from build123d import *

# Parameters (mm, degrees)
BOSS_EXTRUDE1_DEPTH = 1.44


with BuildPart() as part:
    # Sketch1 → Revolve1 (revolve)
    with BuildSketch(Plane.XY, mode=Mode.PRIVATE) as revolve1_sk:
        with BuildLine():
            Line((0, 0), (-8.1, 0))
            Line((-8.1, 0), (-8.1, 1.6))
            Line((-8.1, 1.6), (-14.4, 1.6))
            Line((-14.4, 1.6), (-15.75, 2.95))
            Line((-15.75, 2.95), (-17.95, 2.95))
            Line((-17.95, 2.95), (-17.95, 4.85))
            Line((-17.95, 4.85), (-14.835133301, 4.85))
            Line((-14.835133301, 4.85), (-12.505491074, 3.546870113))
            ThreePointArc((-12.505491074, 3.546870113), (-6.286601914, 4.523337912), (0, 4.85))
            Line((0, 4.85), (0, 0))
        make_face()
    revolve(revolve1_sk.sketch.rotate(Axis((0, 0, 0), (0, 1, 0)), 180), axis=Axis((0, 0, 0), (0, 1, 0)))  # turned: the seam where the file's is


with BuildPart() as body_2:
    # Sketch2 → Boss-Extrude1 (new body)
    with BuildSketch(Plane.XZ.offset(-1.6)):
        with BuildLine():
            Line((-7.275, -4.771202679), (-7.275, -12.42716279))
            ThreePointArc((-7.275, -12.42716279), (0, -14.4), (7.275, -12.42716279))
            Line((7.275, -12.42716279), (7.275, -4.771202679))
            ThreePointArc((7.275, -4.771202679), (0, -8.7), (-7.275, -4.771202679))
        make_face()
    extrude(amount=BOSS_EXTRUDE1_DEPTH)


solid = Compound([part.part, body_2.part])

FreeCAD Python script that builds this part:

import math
import FreeCAD as App
import Part
import Sketcher
Q = App.Units.Quantity

doc = App.newDocument("Part")
body = doc.addObject("PartDesign::Body", "Body")

sketch1 = body.newObject("Sketcher::SketchObject", "Sketch")
sketch1.AttachmentSupport = (doc.getObject("XY_Plane"), [""])
sketch1.MapMode = "FlatFace"
sketch1.addGeometry([
    Part.LineSegment(App.Vector(-8.1, 0, 0), App.Vector(0, 0, 0)),
    Part.LineSegment(App.Vector(0, 0, 0), App.Vector(0, 4.8, 0)),
    Part.ArcOfCircle(Part.Circle(App.Vector(0, -55.8, 0), App.Vector(0, 0, 1), 60.7), math.radians(90), math.radians(101.9)),
    Part.LineSegment(App.Vector(-12.5, 3.5, 0), App.Vector(-14.8, 4.8, 0)),
    Part.LineSegment(App.Vector(-14.8, 4.8, 0), App.Vector(-17.9, 4.8, 0)),
    Part.LineSegment(App.Vector(-17.9, 4.8, 0), App.Vector(-17.9, 3, 0)),
    Part.LineSegment(App.Vector(-17.9, 3, 0), App.Vector(-15.8, 3, 0)),
    Part.LineSegment(App.Vector(-15.8, 3, 0), App.Vector(-14.4, 1.6, 0)),
    Part.LineSegment(App.Vector(-14.4, 1.6, 0), App.Vector(-8.1, 1.6, 0)),
    Part.LineSegment(App.Vector(-8.1, 1.6, 0), App.Vector(-8.1, 0, 0)),
], False)
sketch1.addConstraint([
    Sketcher.Constraint("Coincident", 0, 2, 1, 1),
    Sketcher.Constraint("Coincident", 1, 2, 2, 1),
    Sketcher.Constraint("Coincident", 2, 2, 3, 1),
    Sketcher.Constraint("Coincident", 3, 2, 4, 1),
    Sketcher.Constraint("Coincident", 4, 2, 5, 1),
    Sketcher.Constraint("Coincident", 5, 2, 6, 1),
    Sketcher.Constraint("Coincident", 6, 2, 7, 1),
    Sketcher.Constraint("Coincident", 7, 2, 8, 1),
    Sketcher.Constraint("Coincident", 8, 2, 9, 1),
    Sketcher.Constraint("Coincident", 9, 2, 0, 1),
    Sketcher.Constraint("Horizontal", 0),
    Sketcher.Constraint("Vertical", 1),
    Sketcher.Constraint("Horizontal", 4),
    Sketcher.Constraint("Vertical", 5),
    Sketcher.Constraint("Horizontal", 6),
    Sketcher.Constraint("Horizontal", 8),
    Sketcher.Constraint("Vertical", 9),
    Sketcher.Constraint("Coincident", 0, 2, -1, 1),
    Sketcher.Constraint("PointOnObject", 2, 3, -2),
    Sketcher.Constraint("Horizontal", 1, 2, 3, 2),
    Sketcher.Constraint("Angle", 7, Q("-45 deg")),
    Sketcher.Constraint("DistanceX", 0, 1, 0, 2, 8.1),
    Sketcher.Constraint("DistanceX", 6, 1, 6, 2, 2.2),
    Sketcher.Constraint("DistanceX", 8, 1, 8, 2, 6.3),
    Sketcher.Constraint("DistanceY", 5, 2, 5, 1, 1.9),
    Sketcher.Constraint("DistanceY", 9, 2, 9, 1, 1.6),
    Sketcher.Constraint("DistanceY", 1, 1, 1, 2, 4.85),
    Sketcher.Constraint("Radius", 2, 60.656062),
    Sketcher.Constraint("Distance", 3, 2.669341),
    Sketcher.Constraint("DistanceX", 4, 2, 4, 1, 3.114867),
])
revolution = body.newObject("PartDesign::Revolution", "Revolution")
revolution.Profile = sketch1
revolution.ReferenceAxis = (sketch1, ["V_Axis"])
revolution.Angle = 360
body2 = doc.addObject("PartDesign::Body", "Body001")

sketch2 = body2.newObject("Sketcher::SketchObject", "Sketch001")
sketch2.AttachmentSupport = (doc.getObject("XZ_Plane001"), [""])
sketch2.MapMode = "FlatFace"
sketch2.AttachmentOffset = App.Placement(App.Vector(0, 0, -1.6), App.Rotation())
sketch2.addGeometry([
    Part.LineSegment(App.Vector(-7, -5, 0), App.Vector(-7, -12, 0)),
    Part.ArcOfCircle(Part.Circle(App.Vector(0, 0, 0), App.Vector(0, 0, 1), 14), math.radians(-120), math.radians(-60)),
    Part.LineSegment(App.Vector(7, -12, 0), App.Vector(7, -5, 0)),
    Part.ArcOfCircle(Part.Circle(App.Vector(0, 0, 0), App.Vector(0, 0, 1), 9), math.radians(-147), math.radians(-33)),
], False)
sketch2.addConstraint([
    Sketcher.Constraint("Coincident", 0, 2, 1, 1),
    Sketcher.Constraint("Coincident", 1, 2, 2, 1),
    Sketcher.Constraint("Coincident", 2, 2, 3, 2),
    Sketcher.Constraint("Coincident", 3, 1, 0, 1),
    Sketcher.Constraint("Vertical", 0),
    Sketcher.Constraint("Vertical", 2),
    Sketcher.Constraint("Coincident", 1, 3, -1, 1),
    Sketcher.Constraint("Coincident", 3, 3, -1, 1),
    Sketcher.Constraint("Horizontal", 0, 2, 1, 2),
    Sketcher.Constraint("Radius", 1, 14.4),
    Sketcher.Constraint("Radius", 3, 8.7),
    Sketcher.Constraint("DistanceX", 0, 2, 1, 2, 14.55),
])
pad1 = body2.newObject("PartDesign::Pad", "Pad")
pad1.Profile = sketch2
pad1.Length = 1.44

doc.recompute()
